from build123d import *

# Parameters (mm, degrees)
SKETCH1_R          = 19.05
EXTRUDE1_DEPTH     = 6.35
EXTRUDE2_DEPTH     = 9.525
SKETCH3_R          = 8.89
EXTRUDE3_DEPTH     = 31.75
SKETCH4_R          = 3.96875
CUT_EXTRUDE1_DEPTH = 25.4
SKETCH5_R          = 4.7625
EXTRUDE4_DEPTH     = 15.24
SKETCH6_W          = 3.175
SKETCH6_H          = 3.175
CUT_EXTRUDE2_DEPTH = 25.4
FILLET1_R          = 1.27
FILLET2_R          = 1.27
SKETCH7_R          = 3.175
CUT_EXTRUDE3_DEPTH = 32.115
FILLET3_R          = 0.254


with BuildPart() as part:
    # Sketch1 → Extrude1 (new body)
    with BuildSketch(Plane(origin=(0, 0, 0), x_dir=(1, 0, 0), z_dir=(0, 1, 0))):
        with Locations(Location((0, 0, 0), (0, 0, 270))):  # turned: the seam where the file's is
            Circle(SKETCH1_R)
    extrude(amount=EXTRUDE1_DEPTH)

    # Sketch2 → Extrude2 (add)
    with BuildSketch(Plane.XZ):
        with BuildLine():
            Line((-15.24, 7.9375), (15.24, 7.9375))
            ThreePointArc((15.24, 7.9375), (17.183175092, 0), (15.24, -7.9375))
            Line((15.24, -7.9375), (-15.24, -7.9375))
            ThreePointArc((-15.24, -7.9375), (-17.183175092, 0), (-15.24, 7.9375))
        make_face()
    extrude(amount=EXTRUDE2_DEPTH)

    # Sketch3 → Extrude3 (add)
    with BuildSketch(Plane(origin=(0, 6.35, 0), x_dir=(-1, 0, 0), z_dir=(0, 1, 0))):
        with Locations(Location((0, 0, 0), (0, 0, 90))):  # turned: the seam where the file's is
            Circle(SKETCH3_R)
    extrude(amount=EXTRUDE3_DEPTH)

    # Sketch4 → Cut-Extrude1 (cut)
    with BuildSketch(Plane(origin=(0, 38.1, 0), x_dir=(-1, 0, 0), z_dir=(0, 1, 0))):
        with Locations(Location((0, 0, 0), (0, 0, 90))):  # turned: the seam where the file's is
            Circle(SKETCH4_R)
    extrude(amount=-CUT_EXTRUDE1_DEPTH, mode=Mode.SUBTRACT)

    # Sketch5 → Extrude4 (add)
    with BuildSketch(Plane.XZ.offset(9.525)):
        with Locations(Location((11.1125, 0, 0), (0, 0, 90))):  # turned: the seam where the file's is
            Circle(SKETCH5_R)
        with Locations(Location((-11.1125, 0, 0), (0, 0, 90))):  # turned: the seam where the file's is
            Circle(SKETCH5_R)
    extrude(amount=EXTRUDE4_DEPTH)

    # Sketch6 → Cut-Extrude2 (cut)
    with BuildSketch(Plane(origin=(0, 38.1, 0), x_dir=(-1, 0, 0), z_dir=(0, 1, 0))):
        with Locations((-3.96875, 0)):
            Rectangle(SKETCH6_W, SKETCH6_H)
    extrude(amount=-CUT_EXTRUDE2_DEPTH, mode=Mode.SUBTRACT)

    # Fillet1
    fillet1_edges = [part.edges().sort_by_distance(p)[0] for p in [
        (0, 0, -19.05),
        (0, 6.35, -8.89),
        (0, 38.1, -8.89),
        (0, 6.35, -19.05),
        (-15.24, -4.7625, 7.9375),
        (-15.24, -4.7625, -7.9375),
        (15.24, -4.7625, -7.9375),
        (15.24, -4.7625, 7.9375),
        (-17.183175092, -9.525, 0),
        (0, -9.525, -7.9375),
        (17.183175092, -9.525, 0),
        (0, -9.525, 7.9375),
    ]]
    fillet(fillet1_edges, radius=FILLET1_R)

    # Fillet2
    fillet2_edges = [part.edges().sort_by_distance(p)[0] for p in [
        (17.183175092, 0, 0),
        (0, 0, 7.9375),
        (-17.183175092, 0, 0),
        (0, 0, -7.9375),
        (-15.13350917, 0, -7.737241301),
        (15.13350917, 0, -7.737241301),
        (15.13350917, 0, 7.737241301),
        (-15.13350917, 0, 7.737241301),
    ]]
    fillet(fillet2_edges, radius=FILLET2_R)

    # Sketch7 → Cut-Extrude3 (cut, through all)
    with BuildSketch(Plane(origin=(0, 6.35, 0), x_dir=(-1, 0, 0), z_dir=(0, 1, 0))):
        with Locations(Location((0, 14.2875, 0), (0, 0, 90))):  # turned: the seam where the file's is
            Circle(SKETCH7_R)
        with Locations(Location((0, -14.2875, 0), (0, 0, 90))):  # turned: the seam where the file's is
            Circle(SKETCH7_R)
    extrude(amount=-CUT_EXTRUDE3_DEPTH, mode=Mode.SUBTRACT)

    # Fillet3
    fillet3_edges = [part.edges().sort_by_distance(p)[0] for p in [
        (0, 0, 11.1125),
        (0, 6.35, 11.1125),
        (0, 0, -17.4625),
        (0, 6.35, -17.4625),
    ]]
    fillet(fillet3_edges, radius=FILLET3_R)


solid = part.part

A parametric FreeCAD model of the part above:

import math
import FreeCAD as App
import Part
import Sketcher
Q = App.Units.Quantity


def edges_at(feature, points):
    """Names of the edges that pass closest to the given points."""
    edges = feature.Shape.Edges
    near = lambda p: min(range(len(edges)), key=lambda i: edges[i].distToShape(Part.Vertex(*p))[0])
    return sorted({f"Edge{near(p) + 1}" for p in points})

doc = App.newDocument("Part")
params = doc.addObject("Spreadsheet::Sheet", "Params")
for row, (alias, value) in enumerate([
    ("sketch1_diameter", "1.5 in"),
    ("pad1_length", "0.25 in"),
    ("sketch2_width", "1.2 in"),
    ("pad2_length", "0.375 in"),
    ("sketch3_diameter", "0.7 in"),
    ("pad3_length", "1.25 in"),
    ("sketch4_diameter", "0.3125 in"),
    ("pocket1_length", "1 in"),
    ("sketch5_diameter", "0.375 in"),
    ("pad4_length", "0.6 in"),
    ("sketch6_width", "0.125 in"),
    ("pocket2_length", "1 in"),
    ("fillet_radius", "0.05 in"),
    ("fillet2_radius", "0.05 in"),
    ("sketch7_diameter", "0.25 in"),
    ("fillet3_radius", "0.01 in"),
], start=1):
    params.set(f"A{row}", alias)
    params.set(f"B{row}", "=" + value)
    params.setAlias(f"B{row}", alias)

body = doc.addObject("PartDesign::Body", "Body")

# Sketch on XZ plane
sketch1 = body.newObject("Sketcher::SketchObject", "Sketch")
sketch1.AttachmentSupport = (doc.getObject("XZ_Plane"), [""])
sketch1.MapMode = "FlatFace"
sketch1.addGeometry(Part.Circle(App.Vector(0, 0, 0), App.Vector(0, 0, 1), 19), False)
sketch1.addConstraint([
    Sketcher.Constraint("Coincident", 0, 3, -1, 1),
    Sketcher.Constraint("Diameter", 0, Q("1.5 in")),
])
sketch1.setExpression("Constraints[1]", "Params.sketch1_diameter")
pad1 = body.newObject("PartDesign::Pad", "Pad")
pad1.Profile = sketch1
pad1.setExpression("Length", "Params.pad1_length")
pad1.Reversed = True

# Sketch on XZ plane
sketch2 = body.newObject("Sketcher::SketchObject", "Sketch001")
sketch2.AttachmentSupport = (doc.getObject("XZ_Plane"), [""])
sketch2.MapMode = "FlatFace"
sketch2.addGeometry([
    Part.LineSegment(App.Vector(15, 8, 0), App.Vector(-15, 8, 0)),
    Part.ArcOfCircle(Part.Circle(App.Vector(0, 0, 0), App.Vector(0, 0, 1), 17), math.radians(152), math.radians(208)),
    Part.LineSegment(App.Vector(-15, -8, 0), App.Vector(15, -8, 0)),
    Part.ArcOfCircle(Part.Circle(App.Vector(0, 0, 0), App.Vector(0, 0, 1), 17), math.radians(-28), math.radians(28)),
], False)
sketch2.addConstraint([
    Sketcher.Constraint("Coincident", 0, 2, 1, 1),
    Sketcher.Constraint("Coincident", 1, 2, 2, 1),
    Sketcher.Constraint("Coincident", 2, 2, 3, 1),
    Sketcher.Constraint("Coincident", 3, 2, 0, 1),
    Sketcher.Constraint("Horizontal", 0),
    Sketcher.Constraint("Horizontal", 2),
    Sketcher.Constraint("Coincident", 1, 3, -1, 1),
    Sketcher.Constraint("Coincident", 3, 3, -1, 1),
    Sketcher.Constraint("Equal", 1, 3),
    Sketcher.Constraint("Vertical", 0, 2, 1, 2),
    Sketcher.Constraint("DistanceX", 0, 2, 0, 1, Q("1.2 in")),
    Sketcher.Constraint("DistanceY", -1, 1, 0, 2, Q("0.3125 in")),
])
sketch2.setExpression("Constraints[10]", "Params.sketch2_width")
pad2 = body.newObject("PartDesign::Pad", "Pad001")
pad2.Profile = sketch2
pad2.setExpression("Length", "Params.pad2_length")

# Sketch on XZ plane
sketch3 = body.newObject("Sketcher::SketchObject", "Sketch002")
sketch3.AttachmentSupport = (doc.getObject("XZ_Plane"), [""])
sketch3.MapMode = "FlatFace"
sketch3.AttachmentOffset = App.Placement(App.Vector(0, 0, -0.25 * 25.4), App.Rotation())
sketch3.addGeometry(Part.Circle(App.Vector(0, 0, 0), App.Vector(0, 0, 1), 9), False)
sketch3.addConstraint([
    Sketcher.Constraint("Coincident", 0, 3, -1, 1),
    Sketcher.Constraint("Diameter", 0, Q("0.7 in")),
])
sketch3.setExpression("Constraints[1]", "Params.sketch3_diameter")
pad3 = body.newObject("PartDesign::Pad", "Pad002")
pad3.Profile = sketch3
pad3.setExpression("Length", "Params.pad3_length")
pad3.Reversed = True

# Sketch on XZ plane
sketch4 = body.newObject("Sketcher::SketchObject", "Sketch003")
sketch4.AttachmentSupport = (doc.getObject("XZ_Plane"), [""])
sketch4.MapMode = "FlatFace"
sketch4.AttachmentOffset = App.Placement(App.Vector(0, 0, -1.5 * 25.4), App.Rotation())
sketch4.addGeometry(Part.Circle(App.Vector(0, 0, 0), App.Vector(0, 0, 1), 4), False)
sketch4.addConstraint([
    Sketcher.Constraint("Coincident", 0, 3, -1, 1),
    Sketcher.Constraint("Diameter", 0, Q("0.3125 in")),
])
sketch4.setExpression("Constraints[1]", "Params.sketch4_diameter")
pocket1 = body.newObject("PartDesign::Pocket", "Pocket")
pocket1.Profile = sketch4
pocket1.setExpression("Length", "Params.pocket1_length")
pocket1.Reversed = True

# Sketch on XZ plane
sketch5 = body.newObject("Sketcher::SketchObject", "Sketch004")
sketch5.AttachmentSupport = (doc.getObject("XZ_Plane"), [""])
sketch5.MapMode = "FlatFace"
sketch5.AttachmentOffset = App.Placement(App.Vector(0, 0, 0.375 * 25.4), App.Rotation())
sketch5.addGeometry([
    Part.Circle(App.Vector(11.1, 0, 0), App.Vector(0, 0, 1), 4.8),
    Part.Circle(App.Vector(-11.1, 0, 0), App.Vector(0, 0, 1), 4.8),
], False)
sketch5.addConstraint([
    Sketcher.Constraint("Equal", 0, 1),
    Sketcher.Constraint("Symmetric", 0, 3, 1, 3, -1, 1),
    Sketcher.Constraint("PointOnObject", 0, 3, -1),
    Sketcher.Constraint("Diameter", 0, Q("0.375 in")),
    Sketcher.Constraint("DistanceX", -1, 1, 0, 3, Q("0.4375 in")),
])
sketch5.setExpression("Constraints[3]", "Params.sketch5_diameter")
pad4 = body.newObject("PartDesign::Pad", "Pad003")
pad4.Profile = sketch5
pad4.setExpression("Length", "Params.pad4_length")

# Sketch on XZ plane
sketch6 = body.newObject("Sketcher::SketchObject", "Sketch005")
sketch6.AttachmentSupport = (doc.getObject("XZ_Plane"), [""])
sketch6.MapMode = "FlatFace"
sketch6.AttachmentOffset = App.Placement(App.Vector(0, 0, -1.5 * 25.4), App.Rotation())
sketch6.addGeometry([
    Part.LineSegment(App.Vector(5.6, 1.6, 0), App.Vector(5.6, -1.6, 0)),
    Part.LineSegment(App.Vector(5.6, -1.6, 0), App.Vector(2.4, -1.6, 0)),
    Part.LineSegment(App.Vector(2.4, -1.6, 0), App.Vector(2.4, 1.6, 0)),
    Part.LineSegment(App.Vector(2.4, 1.6, 0), App.Vector(5.6, 1.6, 0)),
], False)
sketch6.addConstraint([
    Sketcher.Constraint("Coincident", 0, 2, 1, 1),
    Sketcher.Constraint("Coincident", 1, 2, 2, 1),
    Sketcher.Constraint("Coincident", 2, 2, 3, 1),
    Sketcher.Constraint("Coincident", 3, 2, 0, 1),
    Sketcher.Constraint("Vertical", 0),
    Sketcher.Constraint("Horizontal", 1),
    Sketcher.Constraint("Vertical", 2),
    Sketcher.Constraint("Horizontal", 3),
    Sketcher.Constraint("Equal", 3, 0),
    Sketcher.Constraint("DistanceX", 1, 2, 1, 1, Q("0.125 in")),
    Sketcher.Constraint("DistanceX", -1, 1, 0, 2, Q("0.21875 in")),
    Sketcher.Constraint("DistanceY", 0, 2, -1, 1, Q("0.0625 in")),
])
sketch6.setExpression("Constraints[9]", "Params.sketch6_width")
pocket2 = body.newObject("PartDesign::Pocket", "Pocket001")
pocket2.Profile = sketch6
pocket2.setExpression("Length", "Params.pocket2_length")
pocket2.Reversed = True
doc.recompute()

fillet = body.newObject("PartDesign::Fillet", "Fillet")
fillet.Base = (pocket2, edges_at(pocket2, [
    (0, 0, -19.05),
    (0, 6.35, -8.89),
    (0, 38.1, -8.89),
    (0, 6.35, -19.05),
    (-15.24, -4.763, 7.938),
    (-15.24, -4.763, -7.938),
    (15.24, -4.763, -7.938),
    (15.24, -4.763, 7.938),
    (-17.183, -9.525, 0),
    (0, -9.525, -7.938),
    (17.183, -9.525, 0),
    (0, -9.525, 7.938),
]))
fillet.setExpression("Radius", "Params.fillet_radius")
doc.recompute()

fillet2 = body.newObject("PartDesign::Fillet", "Fillet001")
fillet2.Base = (fillet, edges_at(fillet, [
    (17.183, 0, 0),
    (0, 0, 7.938),
    (-17.183, 0, 0),
    (0, 0, -7.938),
    (-15.134, 0, -7.737),
    (15.134, 0, -7.737),
    (15.134, 0, 7.737),
    (-15.134, 0, 7.737),
]))
fillet2.setExpression("Radius", "Params.fillet2_radius")

# Sketch on XZ plane
sketch7 = body.newObject("Sketcher::SketchObject", "Sketch006")
sketch7.AttachmentSupport = (doc.getObject("XZ_Plane"), [""])
sketch7.MapMode = "FlatFace"
sketch7.AttachmentOffset = App.Placement(App.Vector(0, 0, -0.25 * 25.4), App.Rotation())
sketch7.addGeometry([
    Part.Circle(App.Vector(0, 14.3, 0), App.Vector(0, 0, 1), 3.2),
    Part.Circle(App.Vector(0, -14.3, 0), App.Vector(0, 0, 1), 3.2),
], False)
sketch7.addConstraint([
    Sketcher.Constraint("Equal", 0, 1),
    Sketcher.Constraint("Symmetric", 0, 3, 1, 3, -1, 1),
    Sketcher.Constraint("PointOnObject", 0, 3, -2),
    Sketcher.Constraint("Diameter", 0, Q("0.25 in")),
    Sketcher.Constraint("DistanceY", -1, 1, 0, 3, Q("0.5625 in")),
])
sketch7.setExpression("Constraints[3]", "Params.sketch7_diameter")
pocket3 = body.newObject("PartDesign::Pocket", "Pocket002")
pocket3.Profile = sketch7
pocket3.Type = "ThroughAll"
pocket3.Reversed = True
doc.recompute()

fillet3 = body.newObject("PartDesign::Fillet", "Fillet002")
fillet3.Base = (pocket3, edges_at(pocket3, [
    (0, 0, 11.113),
    (0, 6.35, 11.113),
    (0, 0, -17.462),
    (0, 6.35, -17.462),
]))
fillet3.setExpression("Radius", "Params.fillet3_radius")

doc.recompute()
